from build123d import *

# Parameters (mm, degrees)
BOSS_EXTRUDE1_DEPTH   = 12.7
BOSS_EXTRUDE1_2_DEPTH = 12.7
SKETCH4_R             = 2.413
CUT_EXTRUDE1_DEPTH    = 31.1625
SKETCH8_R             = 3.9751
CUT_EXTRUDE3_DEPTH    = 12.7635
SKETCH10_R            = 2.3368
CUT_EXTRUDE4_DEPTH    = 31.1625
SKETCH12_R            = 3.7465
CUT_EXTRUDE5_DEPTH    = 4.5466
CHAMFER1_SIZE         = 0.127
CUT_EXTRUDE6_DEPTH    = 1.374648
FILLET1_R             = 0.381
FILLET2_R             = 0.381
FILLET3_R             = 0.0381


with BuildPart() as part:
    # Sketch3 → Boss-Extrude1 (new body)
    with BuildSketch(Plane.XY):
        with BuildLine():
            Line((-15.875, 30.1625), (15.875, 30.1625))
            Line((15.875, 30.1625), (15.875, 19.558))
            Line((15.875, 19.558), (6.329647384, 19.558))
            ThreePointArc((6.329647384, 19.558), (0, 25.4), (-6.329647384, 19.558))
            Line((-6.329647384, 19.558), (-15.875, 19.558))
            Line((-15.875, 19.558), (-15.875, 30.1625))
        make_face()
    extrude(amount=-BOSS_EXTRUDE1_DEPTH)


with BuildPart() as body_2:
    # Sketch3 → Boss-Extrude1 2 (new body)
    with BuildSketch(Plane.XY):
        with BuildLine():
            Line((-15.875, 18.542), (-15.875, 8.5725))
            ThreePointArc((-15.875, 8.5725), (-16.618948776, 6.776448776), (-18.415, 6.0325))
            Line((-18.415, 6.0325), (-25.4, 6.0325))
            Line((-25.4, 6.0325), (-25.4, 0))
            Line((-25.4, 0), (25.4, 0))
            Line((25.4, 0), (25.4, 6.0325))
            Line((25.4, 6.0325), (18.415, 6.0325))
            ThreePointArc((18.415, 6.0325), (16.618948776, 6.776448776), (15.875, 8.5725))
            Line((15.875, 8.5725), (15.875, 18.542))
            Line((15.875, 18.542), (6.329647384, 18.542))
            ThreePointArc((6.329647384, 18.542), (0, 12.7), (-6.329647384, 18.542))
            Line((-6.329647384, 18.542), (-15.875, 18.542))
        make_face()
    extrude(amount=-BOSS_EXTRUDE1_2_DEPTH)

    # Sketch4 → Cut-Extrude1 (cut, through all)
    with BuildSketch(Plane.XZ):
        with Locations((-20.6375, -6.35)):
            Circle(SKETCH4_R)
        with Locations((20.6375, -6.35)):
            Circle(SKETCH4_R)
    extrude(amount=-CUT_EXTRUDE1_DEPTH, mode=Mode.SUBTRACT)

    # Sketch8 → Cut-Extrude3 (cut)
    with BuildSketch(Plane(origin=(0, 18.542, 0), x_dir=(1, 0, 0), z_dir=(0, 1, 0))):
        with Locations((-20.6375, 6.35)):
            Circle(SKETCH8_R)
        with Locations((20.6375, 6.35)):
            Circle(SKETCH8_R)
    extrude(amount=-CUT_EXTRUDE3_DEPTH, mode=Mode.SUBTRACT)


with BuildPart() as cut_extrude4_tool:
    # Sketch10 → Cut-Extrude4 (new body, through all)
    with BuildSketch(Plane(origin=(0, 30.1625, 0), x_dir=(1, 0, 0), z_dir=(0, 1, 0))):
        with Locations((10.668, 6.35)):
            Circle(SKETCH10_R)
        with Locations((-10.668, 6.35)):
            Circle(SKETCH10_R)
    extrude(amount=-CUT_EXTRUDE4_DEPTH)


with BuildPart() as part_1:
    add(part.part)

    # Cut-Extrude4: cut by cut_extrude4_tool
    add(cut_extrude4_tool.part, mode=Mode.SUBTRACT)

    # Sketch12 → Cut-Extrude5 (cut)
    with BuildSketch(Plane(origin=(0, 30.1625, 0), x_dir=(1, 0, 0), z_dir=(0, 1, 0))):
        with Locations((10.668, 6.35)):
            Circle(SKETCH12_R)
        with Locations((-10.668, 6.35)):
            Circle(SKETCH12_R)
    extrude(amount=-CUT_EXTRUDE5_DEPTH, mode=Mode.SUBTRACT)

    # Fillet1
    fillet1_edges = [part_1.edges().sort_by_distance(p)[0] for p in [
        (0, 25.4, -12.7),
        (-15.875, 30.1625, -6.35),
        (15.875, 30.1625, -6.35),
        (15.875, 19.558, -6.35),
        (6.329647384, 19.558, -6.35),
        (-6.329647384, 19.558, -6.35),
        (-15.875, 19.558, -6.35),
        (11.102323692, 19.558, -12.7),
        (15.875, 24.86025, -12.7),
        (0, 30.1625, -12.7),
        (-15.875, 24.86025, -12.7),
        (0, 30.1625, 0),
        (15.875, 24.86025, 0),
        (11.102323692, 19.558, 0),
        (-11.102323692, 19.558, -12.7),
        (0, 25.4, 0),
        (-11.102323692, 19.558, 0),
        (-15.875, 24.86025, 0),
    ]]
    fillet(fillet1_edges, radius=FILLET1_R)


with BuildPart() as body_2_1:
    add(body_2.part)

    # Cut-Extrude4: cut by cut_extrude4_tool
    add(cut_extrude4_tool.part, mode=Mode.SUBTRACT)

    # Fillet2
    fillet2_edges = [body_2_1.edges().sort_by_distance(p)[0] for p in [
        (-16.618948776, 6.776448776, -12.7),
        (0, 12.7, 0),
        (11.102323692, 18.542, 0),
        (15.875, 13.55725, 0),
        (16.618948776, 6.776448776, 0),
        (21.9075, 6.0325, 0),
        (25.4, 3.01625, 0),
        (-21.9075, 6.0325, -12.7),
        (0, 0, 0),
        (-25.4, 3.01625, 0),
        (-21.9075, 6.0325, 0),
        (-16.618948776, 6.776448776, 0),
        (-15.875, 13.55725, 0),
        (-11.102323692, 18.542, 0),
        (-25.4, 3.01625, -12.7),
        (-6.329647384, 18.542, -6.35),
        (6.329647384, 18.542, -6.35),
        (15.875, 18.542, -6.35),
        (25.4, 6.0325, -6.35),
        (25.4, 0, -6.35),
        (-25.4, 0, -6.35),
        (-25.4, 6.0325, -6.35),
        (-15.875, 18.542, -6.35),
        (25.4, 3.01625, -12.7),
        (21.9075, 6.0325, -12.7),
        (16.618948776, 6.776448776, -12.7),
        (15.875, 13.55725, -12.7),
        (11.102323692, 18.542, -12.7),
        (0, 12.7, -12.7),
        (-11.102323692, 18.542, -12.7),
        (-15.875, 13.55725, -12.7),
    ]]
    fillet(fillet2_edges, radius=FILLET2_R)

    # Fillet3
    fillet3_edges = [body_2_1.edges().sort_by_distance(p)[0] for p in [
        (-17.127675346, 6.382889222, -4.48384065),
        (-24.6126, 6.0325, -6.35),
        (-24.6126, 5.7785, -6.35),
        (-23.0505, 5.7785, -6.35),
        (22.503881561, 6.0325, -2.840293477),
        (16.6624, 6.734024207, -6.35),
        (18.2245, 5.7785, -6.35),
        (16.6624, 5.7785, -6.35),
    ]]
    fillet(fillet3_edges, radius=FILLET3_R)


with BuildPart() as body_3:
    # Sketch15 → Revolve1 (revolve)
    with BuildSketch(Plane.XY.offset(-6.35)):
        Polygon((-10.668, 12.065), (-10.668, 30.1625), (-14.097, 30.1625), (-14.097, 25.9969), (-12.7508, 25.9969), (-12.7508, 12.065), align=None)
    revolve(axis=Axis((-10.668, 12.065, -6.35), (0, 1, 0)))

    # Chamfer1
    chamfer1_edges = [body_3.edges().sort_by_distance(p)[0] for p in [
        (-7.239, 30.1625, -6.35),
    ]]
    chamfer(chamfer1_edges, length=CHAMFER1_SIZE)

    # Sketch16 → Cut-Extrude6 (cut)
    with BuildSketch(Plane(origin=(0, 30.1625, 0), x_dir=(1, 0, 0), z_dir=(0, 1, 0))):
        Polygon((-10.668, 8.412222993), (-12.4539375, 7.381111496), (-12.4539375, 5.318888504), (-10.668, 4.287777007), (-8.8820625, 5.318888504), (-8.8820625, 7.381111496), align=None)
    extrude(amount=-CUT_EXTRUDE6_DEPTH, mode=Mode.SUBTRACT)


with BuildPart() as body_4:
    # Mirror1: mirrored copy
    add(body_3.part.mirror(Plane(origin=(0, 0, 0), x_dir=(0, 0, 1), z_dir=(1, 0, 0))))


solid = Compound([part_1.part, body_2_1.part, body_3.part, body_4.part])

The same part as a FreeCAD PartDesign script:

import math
import FreeCAD as App
import Part
import Sketcher
from FreeCAD import Vector
Q = App.Units.Quantity


def edges_at(feature, points):
    """Names of the edges that pass closest to the given points."""
    edges = feature.Shape.Edges
    near = lambda p: min(range(len(edges)), key=lambda i: edges[i].distToShape(Part.Vertex(*p))[0])
    return sorted({f"Edge{near(p) + 1}" for p in points})


def add_polygon(sketch, points):
    """Adds a closed chain of lines whose ends are joined by coincident constraints."""
    first, n = sketch.GeometryCount, len(points)
    for a, b in zip(points, points[1:] + points[:1]):
        sketch.addGeometry(Part.LineSegment(App.Vector(*a, 0), App.Vector(*b, 0)), False)
    for i in range(n):
        sketch.addConstraint(Sketcher.Constraint("Coincident", first + i, 2, first + (i + 1) % n, 1))

doc = App.newDocument("Part")
params = doc.addObject("Spreadsheet::Sheet", "Params")
for row, (alias, value) in enumerate([
    ("sketch1_radius", "0.25 in"),
    ("sketch1_width", "1.25 in"),
    ("pad1_length", "0.5 in"),
    ("sketch2_radius", "0.1 in"),
    ("sketch2_width", "2 in"),
    ("sketch2_radius2", "0.25 in"),
    ("sketch2_width2", "0.275 in"),
    ("pad2_length", "0.5 in"),
    ("sketch3_diameter", "0.19 in"),
    ("sketch4_diameter", "0.313 in"),
    ("pocket2_length", "0.5025 in"),
    ("sketch5_diameter", "0.184 in"),
    ("pad3_length", "31.1625 mm"),
    ("sketch6_diameter", "0.295 in"),
    ("pocket3_length", "0.179 in"),
    ("fillet_radius", "0.015 in"),
    ("fillet2_radius", "0.015 in"),
    ("fillet3_radius", "0.0015 in"),
    ("sketch7_width", "0.135 in"),
    ("sketch7_width2", "0.053 in"),
    ("sketch7_height", "0.164 in"),
    ("revolution_angle", "360 deg"),
    ("chamfer_size", "0.005 in"),
    ("pocket4_length", "1.374648 mm"),
], start=1):
    params.set(f"A{row}", alias)
    params.set(f"B{row}", "=" + value)
    params.setAlias(f"B{row}", alias)

body = doc.addObject("PartDesign::Body", "Body")

sketch1 = body.newObject("Sketcher::SketchObject", "Sketch")
sketch1.AttachmentSupport = (doc.getObject("XY_Plane"), [""])
sketch1.MapMode = "FlatFace"
sketch1.addGeometry(Part.LineSegment(Vector(16, 30, 0), Vector(-16, 30, 0)), False)
sketch1.addGeometry(Part.LineSegment(Vector(-16, 30, 0), Vector(-16, 20, 0)), False)
sketch1.addGeometry(Part.LineSegment(Vector(-16, 20, 0), Vector(-6, 20, 0)), False)
sketch1.addGeometry(Part.ArcOfCircle(Part.Circle(Vector(0, 19, 0), Vector(0, 0, 1), 6), math.radians(5), math.radians(175)), False)
sketch1.addGeometry(Part.LineSegment(Vector(6, 20, 0), Vector(16, 20, 0)), False)
sketch1.addGeometry(Part.LineSegment(Vector(16, 20, 0), Vector(16, 30, 0)), False)
sketch1.addConstraint(Sketcher.Constraint("Coincident", 0, 2, 1, 1))
sketch1.addConstraint(Sketcher.Constraint("Coincident", 1, 2, 2, 1))
sketch1.addConstraint(Sketcher.Constraint("Coincident", 2, 2, 3, 2))
sketch1.addConstraint(Sketcher.Constraint("Coincident", 3, 1, 4, 1))
sketch1.addConstraint(Sketcher.Constraint("Coincident", 4, 2, 5, 1))
sketch1.addConstraint(Sketcher.Constraint("Coincident", 5, 2, 0, 1))
sketch1.addConstraint(Sketcher.Constraint("Horizontal", 0))
sketch1.addConstraint(Sketcher.Constraint("Vertical", 1))
sketch1.addConstraint(Sketcher.Constraint("Horizontal", 2))
sketch1.addConstraint(Sketcher.Constraint("Horizontal", 4))
sketch1.addConstraint(Sketcher.Constraint("Vertical", 5))
sketch1.addConstraint(Sketcher.Constraint("Symmetric", 2, 2, 3, 1, -2))
sketch1.addConstraint(Sketcher.Constraint("Equal", 2, 4))
sketch1.addConstraint(Sketcher.Constraint("Radius", 3, Q("0.25 in")))
sketch1.addConstraint(Sketcher.Constraint("DistanceX", 0, 2, 0, 1, Q("1.25 in")))
sketch1.addConstraint(Sketcher.Constraint("DistanceY", -1, 1, 3, 3, Q("0.75 in")))
sketch1.addConstraint(Sketcher.Constraint("DistanceY", -1, 1, 1, 2, Q("0.77 in")))
sketch1.addConstraint(Sketcher.Constraint("DistanceY", 1, 2, 1, 1, Q("0.4175 in")))
sketch1.setExpression("Constraints[13]", "Params.sketch1_radius")
sketch1.setExpression("Constraints[14]", "Params.sketch1_width")
pad1 = body.newObject("PartDesign::Pad", "Pad")
pad1.Profile = sketch1
pad1.setExpression("Length", "Params.pad1_length")
pad1.Reversed = True
body2 = doc.addObject("PartDesign::Body", "Body001")

sketch2 = body2.newObject("Sketcher::SketchObject", "Sketch001")
sketch2.AttachmentSupport = (doc.getObject("XY_Plane001"), [""])
sketch2.MapMode = "FlatFace"
sketch2.addGeometry(Part.LineSegment(Vector(-15.9, 18.5, 0), Vector(-15.9, 8.6, 0)), False)
sketch2.addGeometry(Part.ArcOfCircle(Part.Circle(Vector(-18.4, 8.6, 0), Vector(0, 0, 1), 2.5), math.radians(-90), math.radians(0)), False)
sketch2.addGeometry(Part.LineSegment(Vector(-18.4, 6, 0), Vector(-25.4, 6, 0)), False)
sketch2.addGeometry(Part.LineSegment(Vector(-25.4, 6, 0), Vector(-25.4, 0, 0)), False)
sketch2.addGeometry(Part.LineSegment(Vector(-25.4, 0, 0), Vector(25.4, 0, 0)), False)
sketch2.addGeometry(Part.LineSegment(Vector(25.4, 0, 0), Vector(25.4, 6, 0)), False)
sketch2.addGeometry(Part.LineSegment(Vector(25.4, 6, 0), Vector(18.4, 6, 0)), False)
sketch2.addGeometry(Part.ArcOfCircle(Part.Circle(Vector(18.4, 8.6, 0), Vector(0, 0, 1), 2.5), math.radians(-180), math.radians(-90)), False)
sketch2.addGeometry(Part.LineSegment(Vector(15.9, 8.6, 0), Vector(15.9, 18.5, 0)), False)
sketch2.addGeometry(Part.LineSegment(Vector(15.9, 18.5, 0), Vector(6.3, 18.5, 0)), False)
sketch2.addGeometry(Part.ArcOfCircle(Part.Circle(Vector(0, 19.1, 0), Vector(0, 0, 1), 6.3), math.radians(-175), math.radians(-5)), False)
sketch2.addGeometry(Part.LineSegment(Vector(-6.3, 18.5, 0), Vector(-15.9, 18.5, 0)), False)
sketch2.addConstraint(Sketcher.Constraint("Tangent", 0, 2, 1, 2))
sketch2.addConstraint(Sketcher.Constraint("Tangent", 1, 1, 2, 1))
sketch2.addConstraint(Sketcher.Constraint("Coincident", 2, 2, 3, 1))
sketch2.addConstraint(Sketcher.Constraint("Coincident", 3, 2, 4, 1))
sketch2.addConstraint(Sketcher.Constraint("Coincident", 4, 2, 5, 1))
sketch2.addConstraint(Sketcher.Constraint("Coincident", 5, 2, 6, 1))
sketch2.addConstraint(Sketcher.Constraint("Tangent", 6, 2, 7, 2))
sketch2.addConstraint(Sketcher.Constraint("Tangent", 7, 1, 8, 1))
sketch2.addConstraint(Sketcher.Constraint("Coincident", 8, 2, 9, 1))
sketch2.addConstraint(Sketcher.Constraint("Coincident", 9, 2, 10, 2))
sketch2.addConstraint(Sketcher.Constraint("Coincident", 10, 1, 11, 1))
sketch2.addConstraint(Sketcher.Constraint("Coincident", 11, 2, 0, 1))
sketch2.addConstraint(Sketcher.Constraint("Vertical", 0))
sketch2.addConstraint(Sketcher.Constraint("Horizontal", 2))
sketch2.addConstraint(Sketcher.Constraint("Vertical", 3))
sketch2.addConstraint(Sketcher.Constraint("Horizontal", 4))
sketch2.addConstraint(Sketcher.Constraint("Vertical", 5))
sketch2.addConstraint(Sketcher.Constraint("Horizontal", 6))
sketch2.addConstraint(Sketcher.Constraint("Vertical", 8))
sketch2.addConstraint(Sketcher.Constraint("Horizontal", 9))
sketch2.addConstraint(Sketcher.Constraint("Horizontal", 11))
sketch2.addConstraint(Sketcher.Constraint("Equal", 1, 7))
sketch2.addConstraint(Sketcher.Constraint("Symmetric", 3, 2, 4, 2, -1, 1))
sketch2.addConstraint(Sketcher.Constraint("Symmetric", 1, 3, 7, 3, -2))
sketch2.addConstraint(Sketcher.Constraint("Symmetric", 9, 2, 10, 1, -2))
sketch2.addConstraint(Sketcher.Constraint("Radius", 1, Q("0.1 in")))
sketch2.addConstraint(Sketcher.Constraint("DistanceX", 4, 1, 4, 2, Q("2 in")))
sketch2.addConstraint(Sketcher.Constraint("Radius", 10, Q("0.25 in")))
sketch2.addConstraint(Sketcher.Constraint("DistanceX", 2, 2, 2, 1, Q("0.275 in")))
sketch2.addConstraint(Sketcher.Constraint("DistanceY", -1, 1, 10, 3, Q("0.75 in")))
sketch2.addConstraint(Sketcher.Constraint("DistanceY", -1, 1, 8, 2, Q("0.73 in")))
sketch2.addConstraint(Sketcher.Constraint("DistanceY", 0, 2, 0, 1, Q("0.3925 in")))
sketch2.setExpression("Constraints[25]", "Params.sketch2_radius")
sketch2.setExpression("Constraints[26]", "Params.sketch2_width")
sketch2.setExpression("Constraints[27]", "Params.sketch2_radius2")
sketch2.setExpression("Constraints[28]", "Params.sketch2_width2")
pad2 = body2.newObject("PartDesign::Pad", "Pad001")
pad2.Profile = sketch2
pad2.setExpression("Length", "Params.pad2_length")
pad2.Reversed = True

sketch3 = body2.newObject("Sketcher::SketchObject", "Sketch002")
sketch3.AttachmentSupport = (doc.getObject("XZ_Plane001"), [""])
sketch3.MapMode = "FlatFace"
sketch3.addGeometry(Part.Circle(Vector(-20.6, -6.3, 0), Vector(0, 0, 1), 2.4), False)
sketch3.addGeometry(Part.Circle(Vector(20.6, -6.3, 0), Vector(0, 0, 1), 2.4), False)
sketch3.addConstraint(Sketcher.Constraint("Equal", 0, 1))
sketch3.addConstraint(Sketcher.Constraint("Symmetric", 0, 3, 1, 3, -2))
sketch3.addConstraint(Sketcher.Constraint("Diameter", 0, Q("0.19 in")))
sketch3.addConstraint(Sketcher.Constraint("DistanceY", 0, 3, -1, 1, Q("0.25 in")))
sketch3.addConstraint(Sketcher.Constraint("DistanceX", 0, 3, -1, 1, Q("0.8125 in")))
sketch3.setExpression("Constraints[2]", "Params.sketch3_diameter")
pocket1 = body2.newObject("PartDesign::Pocket", "Pocket")
pocket1.Profile = sketch3
pocket1.Type = "ThroughAll"

sketch4 = body2.newObject("Sketcher::SketchObject", "Sketch003")
sketch4.AttachmentSupport = (doc.getObject("XZ_Plane001"), [""])
sketch4.MapMode = "FlatFace"
sketch4.AttachmentOffset = App.Placement(Vector(0, 0, -0.73 * 25.4), App.Rotation())
sketch4.addGeometry(Part.Circle(Vector(-20.6, -6.3, 0), Vector(0, 0, 1), 4), False)
sketch4.addGeometry(Part.Circle(Vector(20.6, -6.3, 0), Vector(0, 0, 1), 4), False)
sketch4.addConstraint(Sketcher.Constraint("Equal", 0, 1))
sketch4.addConstraint(Sketcher.Constraint("Symmetric", 0, 3, 1, 3, -2))
sketch4.addConstraint(Sketcher.Constraint("Diameter", 0, Q("0.313 in")))
sketch4.addConstraint(Sketcher.Constraint("DistanceY", 0, 3, -1, 1, Q("0.25 in")))
sketch4.addConstraint(Sketcher.Constraint("DistanceX", 0, 3, -1, 1, Q("0.8125 in")))
sketch4.setExpression("Constraints[2]", "Params.sketch4_diameter")
pocket2 = body2.newObject("PartDesign::Pocket", "Pocket001")
pocket2.Profile = sketch4
pocket2.setExpression("Length", "Params.pocket2_length")
pocket2.Reversed = True
body3 = doc.addObject("PartDesign::Body", "Body002")
body3.AllowCompound = True

sketch5 = body3.newObject("Sketcher::SketchObject", "Sketch004")
sketch5.AttachmentSupport = (doc.getObject("XZ_Plane002"), [""])
sketch5.MapMode = "FlatFace"
sketch5.AttachmentOffset = App.Placement(Vector(0, 0, -1.1875 * 25.4), App.Rotation())
sketch5.addGeometry(Part.Circle(Vector(10.7, -6.3, 0), Vector(0, 0, 1), 2.3), False)
sketch5.addGeometry(Part.Circle(Vector(-10.7, -6.3, 0), Vector(0, 0, 1), 2.3), False)
sketch5.addConstraint(Sketcher.Constraint("Equal", 0, 1))
sketch5.addConstraint(Sketcher.Constraint("Symmetric", 0, 3, 1, 3, -2))
sketch5.addConstraint(Sketcher.Constraint("Diameter", 0, Q("0.184 in")))
sketch5.addConstraint(Sketcher.Constraint("DistanceX", -1, 1, 0, 3, Q("0.42 in")))
sketch5.addConstraint(Sketcher.Constraint("DistanceY", 0, 3, -1, 1, Q("0.25 in")))
sketch5.setExpression("Constraints[2]", "Params.sketch5_diameter")
pad3 = body3.newObject("PartDesign::Pad", "Pad002")
pad3.Profile = sketch5
pad3.setExpression("Length", "Params.pad3_length")
doc.recompute()

body4 = doc.addObject("PartDesign::Body", "Body003")
body4.BaseFeature = body3
boolean = body.newObject("PartDesign::Boolean", "Boolean")
boolean.Type = "Cut"
boolean.addObjects([body4])
doc.recompute()

sketch6 = body.newObject("Sketcher::SketchObject", "Sketch005")
sketch6.AttachmentSupport = (doc.getObject("XZ_Plane"), [""])
sketch6.MapMode = "FlatFace"
sketch6.AttachmentOffset = App.Placement(Vector(0, 0, -1.1875 * 25.4), App.Rotation())
sketch6.addGeometry(Part.Circle(Vector(10.7, -6.3, 0), Vector(0, 0, 1), 3.7), False)
sketch6.addGeometry(Part.Circle(Vector(-10.7, -6.3, 0), Vector(0, 0, 1), 3.7), False)
sketch6.addConstraint(Sketcher.Constraint("Equal", 0, 1))
sketch6.addConstraint(Sketcher.Constraint("Symmetric", 0, 3, 1, 3, -2))
sketch6.addConstraint(Sketcher.Constraint("Diameter", 0, Q("0.295 in")))
sketch6.addConstraint(Sketcher.Constraint("DistanceX", -1, 1, 0, 3, Q("0.42 in")))
sketch6.addConstraint(Sketcher.Constraint("DistanceY", 0, 3, -1, 1, Q("0.25 in")))
sketch6.setExpression("Constraints[2]", "Params.sketch6_diameter")
pocket3 = body.newObject("PartDesign::Pocket", "Pocket002")
pocket3.Profile = sketch6
pocket3.setExpression("Length", "Params.pocket3_length")
pocket3.Reversed = True
doc.recompute()

fillet = body.newObject("PartDesign::Fillet", "Fillet")
fillet.Base = (pocket3, edges_at(pocket3, [
    (0, 25.4, -12.7),
    (-15.875, 30.163, -6.35),
    (15.875, 30.163, -6.35),
    (15.875, 19.558, -6.35),
    (6.33, 19.558, -6.35),
    (-6.33, 19.558, -6.35),
    (-15.875, 19.558, -6.35),
    (11.102, 19.558, -12.7),
    (15.875, 24.86, -12.7),
    (0, 30.163, -12.7),
    (-15.875, 24.86, -12.7),
    (0, 30.163, 0),
    (15.875, 24.86, 0),
    (11.102, 19.558, 0),
    (-11.102, 19.558, -12.7),
    (0, 25.4, 0),
    (-11.102, 19.558, 0),
    (-15.875, 24.86, 0),
]))
fillet.setExpression("Radius", "Params.fillet_radius")
doc.recompute()

boolean2 = body2.newObject("PartDesign::Boolean", "Boolean001")
boolean2.Type = "Cut"
boolean2.addObjects([body3])
doc.recompute()

fillet2 = body2.newObject("PartDesign::Fillet", "Fillet001")
fillet2.Base = (boolean2, edges_at(boolean2, [
    (-16.619, 6.776, -12.7),
    (0, 12.7, 0),
    (11.102, 18.542, 0),
    (15.875, 13.557, 0),
    (16.619, 6.776, 0),
    (21.907, 6.032, 0),
    (25.4, 3.016, 0),
    (-21.907, 6.032, -12.7),
    (0, 0, 0),
    (-25.4, 3.016, 0),
    (-21.907, 6.032, 0),
    (-16.619, 6.776, 0),
    (-15.875, 13.557, 0),
    (-11.102, 18.542, 0),
    (-25.4, 3.016, -12.7),
    (-6.33, 18.542, -6.35),
    (6.33, 18.542, -6.35),
    (15.875, 18.542, -6.35),
    (25.4, 6.032, -6.35),
    (25.4, 0, -6.35),
    (-25.4, 0, -6.35),
    (-25.4, 6.032, -6.35),
    (-15.875, 18.542, -6.35),
    (25.4, 3.016, -12.7),
    (21.907, 6.032, -12.7),
    (16.619, 6.776, -12.7),
    (15.875, 13.557, -12.7),
    (11.102, 18.542, -12.7),
    (0, 12.7, -12.7),
    (-11.102, 18.542, -12.7),
    (-15.875, 13.557, -12.7),
]))
fillet2.setExpression("Radius", "Params.fillet2_radius")
doc.recompute()

fillet3 = body2.newObject("PartDesign::Fillet", "Fillet002")
fillet3.Base = (fillet2, edges_at(fillet2, [
    (-17.128, 6.383, -4.484),
    (-24.613, 6.032, -6.35),
    (-24.613, 5.779, -6.35),
    (-23.05, 5.779, -6.35),
    (22.504, 6.032, -2.84),
    (16.662, 6.734, -6.35),
    (18.224, 5.779, -6.35),
    (16.662, 5.779, -6.35),
]))
fillet3.setExpression("Radius", "Params.fillet3_radius")
body5 = doc.addObject("PartDesign::Body", "Body004")

sketch7 = body5.newObject("Sketcher::SketchObject", "Sketch006")
sketch7.AttachmentSupport = (doc.getObject("XY_Plane004"), [""])
sketch7.MapMode = "FlatFace"
sketch7.AttachmentOffset = App.Placement(Vector(0, 0, -0.25 * 25.4), App.Rotation())
add_polygon(sketch7, [(-10.7, 12.1), (-10.7, 30.2), (-14.1, 30.2), (-14.1, 26), (-12.8, 26), (-12.8, 12.1)])
sketch7.addGeometry(Part.LineSegment(Vector(-10.7, 12.1, 0), Vector(-10.7, 30.2, 0)), True)
sketch7.addConstraint(Sketcher.Constraint("Vertical", 0))
sketch7.addConstraint(Sketcher.Constraint("Horizontal", 1))
sketch7.addConstraint(Sketcher.Constraint("Vertical", 2))
sketch7.addConstraint(Sketcher.Constraint("Horizontal", 3))
sketch7.addConstraint(Sketcher.Constraint("Vertical", 4))
sketch7.addConstraint(Sketcher.Constraint("Horizontal", 5))
sketch7.addConstraint(Sketcher.Constraint("Vertical", 6))
sketch7.addConstraint(Sketcher.Constraint("Coincident", 6, 1, 5, 2))
sketch7.addConstraint(Sketcher.Constraint("Horizontal", 1, 2, 6, 2))
sketch7.addConstraint(Sketcher.Constraint("DistanceX", 1, 2, 1, 1, Q("0.135 in")))
sketch7.addConstraint(Sketcher.Constraint("DistanceX", 3, 1, 3, 2, Q("0.053 in")))
sketch7.addConstraint(Sketcher.Constraint("DistanceY", 2, 2, 2, 1, Q("0.164 in")))
sketch7.addConstraint(Sketcher.Constraint("DistanceX", 0, 2, -1, 1, Q("0.42 in")))
sketch7.addConstraint(Sketcher.Constraint("DistanceY", 0, 1, 0, 2, Q("0.7125 in")))
sketch7.addConstraint(Sketcher.Constraint("DistanceY", -1, 1, 0, 2, Q("1.1875 in")))
sketch7.setExpression("Constraints[15]", "Params.sketch7_width")
sketch7.setExpression("Constraints[16]", "Params.sketch7_width2")
sketch7.setExpression("Constraints[17]", "Params.sketch7_height")
revolution = body5.newObject("PartDesign::Revolution", "Revolution")
revolution.Profile = sketch7
revolution.ReferenceAxis = (sketch7, ["Axis0"])
revolution.setExpression("Angle", "Params.revolution_angle")
doc.recompute()

chamfer = body5.newObject("PartDesign::Chamfer", "Chamfer")
chamfer.Base = (revolution, edges_at(revolution, [(-7.239, 30.163, -6.35)]))
chamfer.setExpression("Size", "Params.chamfer_size")

sketch8 = body5.newObject("Sketcher::SketchObject", "Sketch007")
sketch8.AttachmentSupport = (doc.getObject("XZ_Plane004"), [""])
sketch8.MapMode = "FlatFace"
sketch8.AttachmentOffset = App.Placement(Vector(0, 0, -1.1875 * 25.4), App.Rotation())
add_polygon(sketch8, [(-10.7, -8.4), (-12.5, -7.4), (-12.5, -5.3), (-10.7, -4.3), (-8.9, -5.3), (-8.9, -7.4)])
sketch8.addConstraint(Sketcher.Constraint("Vertical", 1))
sketch8.addConstraint(Sketcher.Constraint("Vertical", 4))
sketch8.addConstraint(Sketcher.Constraint("Parallel", 0, 3))
sketch8.addConstraint(Sketcher.Constraint("Parallel", 2, 5))
sketch8.addConstraint(Sketcher.Constraint("Horizontal", 1, 2, 3, 2))
sketch8.addConstraint(Sketcher.Constraint("Horizontal", 0, 2, 4, 2))
sketch8.addConstraint(Sketcher.Constraint("Vertical", 2, 2, 5, 2))
sketch8.addConstraint(Sketcher.Constraint("Angle", 0, Q("150 deg")))
sketch8.addConstraint(Sketcher.Constraint("DistanceX", 2, 2, -1, 1, Q("0.42 in")))
sketch8.addConstraint(Sketcher.Constraint("DistanceX", 1, 2, 3, 2, Q("0.140625 in")))
sketch8.addConstraint(Sketcher.Constraint("DistanceY", 1, 1, 1, 2, 2.062223))
sketch8.addConstraint(Sketcher.Constraint("DistanceY", 0, 2, -1, 1, 7.381111))
pocket4 = body5.newObject("PartDesign::Pocket", "Pocket003")
pocket4.Profile = sketch8
pocket4.setExpression("Length", "Params.pocket4_length")
pocket4.Reversed = True
body6 = doc.addObject("PartDesign::Body", "Body005")
doc.recompute()

mirroring = doc.addObject("Part::Mirroring", "Mirroring")
mirroring.Source = body5
mirroring.Base = Vector(0, 0, 0)
mirroring.Normal = Vector(1, 0, 0)
body6.BaseFeature = mirroring
doc.recompute()
mirroring.Visibility = False

doc.recompute()
